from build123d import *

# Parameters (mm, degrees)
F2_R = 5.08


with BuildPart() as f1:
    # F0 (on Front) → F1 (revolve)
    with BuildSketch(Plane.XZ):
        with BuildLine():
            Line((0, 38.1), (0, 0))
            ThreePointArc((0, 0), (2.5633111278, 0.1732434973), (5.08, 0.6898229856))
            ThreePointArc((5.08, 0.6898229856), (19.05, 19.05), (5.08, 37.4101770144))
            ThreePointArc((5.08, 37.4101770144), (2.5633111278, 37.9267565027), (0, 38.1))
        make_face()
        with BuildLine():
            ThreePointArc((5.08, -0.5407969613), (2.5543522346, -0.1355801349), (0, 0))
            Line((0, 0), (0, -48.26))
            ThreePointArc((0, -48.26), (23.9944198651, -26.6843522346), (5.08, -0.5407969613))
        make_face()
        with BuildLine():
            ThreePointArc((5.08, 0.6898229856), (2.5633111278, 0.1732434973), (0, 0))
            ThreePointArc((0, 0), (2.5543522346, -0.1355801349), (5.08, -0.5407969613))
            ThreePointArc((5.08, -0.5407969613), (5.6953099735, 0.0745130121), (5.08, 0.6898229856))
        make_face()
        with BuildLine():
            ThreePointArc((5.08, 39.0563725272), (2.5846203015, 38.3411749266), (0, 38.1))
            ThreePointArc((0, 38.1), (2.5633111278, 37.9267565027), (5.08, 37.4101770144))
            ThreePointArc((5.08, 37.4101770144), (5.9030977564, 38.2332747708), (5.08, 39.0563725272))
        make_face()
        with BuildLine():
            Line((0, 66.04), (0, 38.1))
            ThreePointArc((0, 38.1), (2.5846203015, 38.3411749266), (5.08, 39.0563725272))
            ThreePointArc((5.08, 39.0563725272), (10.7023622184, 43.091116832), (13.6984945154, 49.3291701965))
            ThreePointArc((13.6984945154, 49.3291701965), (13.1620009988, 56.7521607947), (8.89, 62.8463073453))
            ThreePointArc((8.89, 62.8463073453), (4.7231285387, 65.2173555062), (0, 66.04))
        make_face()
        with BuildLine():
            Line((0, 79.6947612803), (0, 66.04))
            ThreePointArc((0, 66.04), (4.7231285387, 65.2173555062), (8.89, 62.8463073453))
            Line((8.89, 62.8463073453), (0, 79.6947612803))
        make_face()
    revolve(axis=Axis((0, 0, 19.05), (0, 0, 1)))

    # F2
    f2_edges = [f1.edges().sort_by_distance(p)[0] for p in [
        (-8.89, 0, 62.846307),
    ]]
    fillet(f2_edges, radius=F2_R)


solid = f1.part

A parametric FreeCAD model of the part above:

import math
import FreeCAD as App
import Part
import Sketcher
from FreeCAD import Vector
Q = App.Units.Quantity


def edges_at(feature, points):
    """Names of the edges that pass closest to the given points."""
    edges = feature.Shape.Edges
    near = lambda p: min(range(len(edges)), key=lambda i: edges[i].distToShape(Part.Vertex(*p))[0])
    return sorted({f"Edge{near(p) + 1}" for p in points})

doc = App.newDocument("Part")
params = doc.addObject("Spreadsheet::Sheet", "Params")
for row, (alias, value) in enumerate([
    ("sketch1_radius", "0.95 in"),
    ("sketch1_radius2", "0.75 in"),
    ("sketch1_radius3", "0.55 in"),
    ("sketch1_length", "0.75 in"),
    ("revolution_angle", "360 deg"),
    ("fillet_radius", "0.2 in"),
], start=1):
    params.set(f"A{row}", alias)
    params.set(f"B{row}", "=" + value)
    params.setAlias(f"B{row}", alias)

body = doc.addObject("PartDesign::Body", "Body")

# Sketch on XZ plane
sketch1 = body.newObject("Sketcher::SketchObject", "Sketch")
sketch1.AttachmentSupport = (doc.getObject("XZ_Plane"), [""])
sketch1.MapMode = "FlatFace"
sketch1.addGeometry(Part.ArcOfCircle(Part.Circle(Vector(0, -24.13, 0), Vector(0, 0, 1), 24.13), math.radians(-90), math.radians(77.846803)), False)
sketch1.addGeometry(Part.ArcOfCircle(Part.Circle(Vector(5.08, 0.074513, 0), Vector(0, 0, 1), 0.61531), math.radians(-90), math.radians(90)), False)
sketch1.addGeometry(Part.ArcOfCircle(Part.Circle(Vector(0, 19.05, 0), Vector(0, 0, 1), 19.05), math.radians(-74.53399), math.radians(74.53399)), False)
sketch1.addGeometry(Part.ArcOfCircle(Part.Circle(Vector(5.08, 38.233275, 0), Vector(0, 0, 1), 0.823098), math.radians(-90), math.radians(90)), False)
sketch1.addGeometry(Part.ArcOfCircle(Part.Circle(Vector(0, 52.07, 0), Vector(0, 0, 1), 13.97), math.radians(-68.676314), math.radians(-11.314481)), False)
sketch1.addGeometry(Part.ArcOfCircle(Part.Circle(Vector(0, 52.07, 0), Vector(0, 0, 1), 13.97), math.radians(-11.314481), math.radians(50.478804)), False)
sketch1.addGeometry(Part.LineSegment(Vector(8.89, 62.846307, 0), Vector(0, 79.694761, 0)), False)
sketch1.addGeometry(Part.LineSegment(Vector(0, 79.694761, 0), Vector(0, -48.26, 0)), False)
sketch1.addConstraint(Sketcher.Constraint("Coincident", 0, 2, 1, 1))
sketch1.addConstraint(Sketcher.Constraint("Coincident", 1, 2, 2, 1))
sketch1.addConstraint(Sketcher.Constraint("Coincident", 2, 2, 3, 1))
sketch1.addConstraint(Sketcher.Constraint("Coincident", 3, 2, 4, 1))
sketch1.addConstraint(Sketcher.Constraint("Tangent", 4, 2, 5, 1))
sketch1.addConstraint(Sketcher.Constraint("Coincident", 5, 2, 6, 1))
sketch1.addConstraint(Sketcher.Constraint("Coincident", 6, 2, 7, 1))
sketch1.addConstraint(Sketcher.Constraint("Coincident", 7, 2, 0, 1))
sketch1.addConstraint(Sketcher.Constraint("Vertical", 7))
sketch1.addConstraint(Sketcher.Constraint("Equal", 4, 5))
sketch1.addConstraint(Sketcher.Constraint("PointOnObject", 0, 3, -2))
sketch1.addConstraint(Sketcher.Constraint("PointOnObject", 2, 3, -2))
sketch1.addConstraint(Sketcher.Constraint("PointOnObject", 4, 3, -2))
sketch1.addConstraint(Sketcher.Constraint("PointOnObject", 6, 2, -2))
sketch1.addConstraint(Sketcher.Constraint("Vertical", 1, 3, 3, 3))
sketch1.addConstraint(Sketcher.Constraint("Vertical", 3, 3, 0, 2))
sketch1.addConstraint(Sketcher.Constraint("Vertical", 0, 2, 1, 2))
sketch1.addConstraint(Sketcher.Constraint("Vertical", 1, 2, 2, 2))
sketch1.addConstraint(Sketcher.Constraint("Vertical", 2, 2, 3, 2))
sketch1.addConstraint(Sketcher.Constraint("Radius", 0, Q("0.95 in")))
sketch1.addConstraint(Sketcher.Constraint("Radius", 2, Q("0.75 in")))
sketch1.addConstraint(Sketcher.Constraint("Radius", 4, Q("0.55 in")))
sketch1.addConstraint(Sketcher.Constraint("DistanceY", 0, 3, 4, 3, Q("3 in")))
sketch1.addConstraint(Sketcher.Constraint("DistanceX", -1, 1, 1, 3, Q("0.2 in")))
sketch1.addConstraint(Sketcher.Constraint("DistanceY", 7, 2, -1, 1, Q("1.9 in")))
sketch1.addConstraint(Sketcher.Constraint("DistanceY", 0, 3, 2, 3, Q("1.7 in")))
sketch1.addConstraint(Sketcher.Constraint("Distance", 6, Q("0.75 in")))
sketch1.addConstraint(Sketcher.Constraint("DistanceX", -1, 1, 5, 2, Q("0.35 in")))
sketch1.addConstraint(Sketcher.Constraint("DistanceY", -1, 1, 4, 2, 49.32917))
sketch1.setExpression("Constraints[19]", "Params.sketch1_radius")
sketch1.setExpression("Constraints[20]", "Params.sketch1_radius2")
sketch1.setExpression("Constraints[21]", "Params.sketch1_radius3")
sketch1.setExpression("Constraints[26]", "Params.sketch1_length")
revolution = body.newObject("PartDesign::Revolution", "Revolution")
revolution.Profile = sketch1
revolution.ReferenceAxis = (sketch1, ["V_Axis"])
revolution.setExpression("Angle", "Params.revolution_angle")
doc.recompute()

fillet = body.newObject("PartDesign::Fillet", "Fillet")
fillet.Base = (revolution, edges_at(revolution, [(-8.89, 0, 62.846)]))
fillet.setExpression("Radius", "Params.fillet_radius")

doc.recompute()
